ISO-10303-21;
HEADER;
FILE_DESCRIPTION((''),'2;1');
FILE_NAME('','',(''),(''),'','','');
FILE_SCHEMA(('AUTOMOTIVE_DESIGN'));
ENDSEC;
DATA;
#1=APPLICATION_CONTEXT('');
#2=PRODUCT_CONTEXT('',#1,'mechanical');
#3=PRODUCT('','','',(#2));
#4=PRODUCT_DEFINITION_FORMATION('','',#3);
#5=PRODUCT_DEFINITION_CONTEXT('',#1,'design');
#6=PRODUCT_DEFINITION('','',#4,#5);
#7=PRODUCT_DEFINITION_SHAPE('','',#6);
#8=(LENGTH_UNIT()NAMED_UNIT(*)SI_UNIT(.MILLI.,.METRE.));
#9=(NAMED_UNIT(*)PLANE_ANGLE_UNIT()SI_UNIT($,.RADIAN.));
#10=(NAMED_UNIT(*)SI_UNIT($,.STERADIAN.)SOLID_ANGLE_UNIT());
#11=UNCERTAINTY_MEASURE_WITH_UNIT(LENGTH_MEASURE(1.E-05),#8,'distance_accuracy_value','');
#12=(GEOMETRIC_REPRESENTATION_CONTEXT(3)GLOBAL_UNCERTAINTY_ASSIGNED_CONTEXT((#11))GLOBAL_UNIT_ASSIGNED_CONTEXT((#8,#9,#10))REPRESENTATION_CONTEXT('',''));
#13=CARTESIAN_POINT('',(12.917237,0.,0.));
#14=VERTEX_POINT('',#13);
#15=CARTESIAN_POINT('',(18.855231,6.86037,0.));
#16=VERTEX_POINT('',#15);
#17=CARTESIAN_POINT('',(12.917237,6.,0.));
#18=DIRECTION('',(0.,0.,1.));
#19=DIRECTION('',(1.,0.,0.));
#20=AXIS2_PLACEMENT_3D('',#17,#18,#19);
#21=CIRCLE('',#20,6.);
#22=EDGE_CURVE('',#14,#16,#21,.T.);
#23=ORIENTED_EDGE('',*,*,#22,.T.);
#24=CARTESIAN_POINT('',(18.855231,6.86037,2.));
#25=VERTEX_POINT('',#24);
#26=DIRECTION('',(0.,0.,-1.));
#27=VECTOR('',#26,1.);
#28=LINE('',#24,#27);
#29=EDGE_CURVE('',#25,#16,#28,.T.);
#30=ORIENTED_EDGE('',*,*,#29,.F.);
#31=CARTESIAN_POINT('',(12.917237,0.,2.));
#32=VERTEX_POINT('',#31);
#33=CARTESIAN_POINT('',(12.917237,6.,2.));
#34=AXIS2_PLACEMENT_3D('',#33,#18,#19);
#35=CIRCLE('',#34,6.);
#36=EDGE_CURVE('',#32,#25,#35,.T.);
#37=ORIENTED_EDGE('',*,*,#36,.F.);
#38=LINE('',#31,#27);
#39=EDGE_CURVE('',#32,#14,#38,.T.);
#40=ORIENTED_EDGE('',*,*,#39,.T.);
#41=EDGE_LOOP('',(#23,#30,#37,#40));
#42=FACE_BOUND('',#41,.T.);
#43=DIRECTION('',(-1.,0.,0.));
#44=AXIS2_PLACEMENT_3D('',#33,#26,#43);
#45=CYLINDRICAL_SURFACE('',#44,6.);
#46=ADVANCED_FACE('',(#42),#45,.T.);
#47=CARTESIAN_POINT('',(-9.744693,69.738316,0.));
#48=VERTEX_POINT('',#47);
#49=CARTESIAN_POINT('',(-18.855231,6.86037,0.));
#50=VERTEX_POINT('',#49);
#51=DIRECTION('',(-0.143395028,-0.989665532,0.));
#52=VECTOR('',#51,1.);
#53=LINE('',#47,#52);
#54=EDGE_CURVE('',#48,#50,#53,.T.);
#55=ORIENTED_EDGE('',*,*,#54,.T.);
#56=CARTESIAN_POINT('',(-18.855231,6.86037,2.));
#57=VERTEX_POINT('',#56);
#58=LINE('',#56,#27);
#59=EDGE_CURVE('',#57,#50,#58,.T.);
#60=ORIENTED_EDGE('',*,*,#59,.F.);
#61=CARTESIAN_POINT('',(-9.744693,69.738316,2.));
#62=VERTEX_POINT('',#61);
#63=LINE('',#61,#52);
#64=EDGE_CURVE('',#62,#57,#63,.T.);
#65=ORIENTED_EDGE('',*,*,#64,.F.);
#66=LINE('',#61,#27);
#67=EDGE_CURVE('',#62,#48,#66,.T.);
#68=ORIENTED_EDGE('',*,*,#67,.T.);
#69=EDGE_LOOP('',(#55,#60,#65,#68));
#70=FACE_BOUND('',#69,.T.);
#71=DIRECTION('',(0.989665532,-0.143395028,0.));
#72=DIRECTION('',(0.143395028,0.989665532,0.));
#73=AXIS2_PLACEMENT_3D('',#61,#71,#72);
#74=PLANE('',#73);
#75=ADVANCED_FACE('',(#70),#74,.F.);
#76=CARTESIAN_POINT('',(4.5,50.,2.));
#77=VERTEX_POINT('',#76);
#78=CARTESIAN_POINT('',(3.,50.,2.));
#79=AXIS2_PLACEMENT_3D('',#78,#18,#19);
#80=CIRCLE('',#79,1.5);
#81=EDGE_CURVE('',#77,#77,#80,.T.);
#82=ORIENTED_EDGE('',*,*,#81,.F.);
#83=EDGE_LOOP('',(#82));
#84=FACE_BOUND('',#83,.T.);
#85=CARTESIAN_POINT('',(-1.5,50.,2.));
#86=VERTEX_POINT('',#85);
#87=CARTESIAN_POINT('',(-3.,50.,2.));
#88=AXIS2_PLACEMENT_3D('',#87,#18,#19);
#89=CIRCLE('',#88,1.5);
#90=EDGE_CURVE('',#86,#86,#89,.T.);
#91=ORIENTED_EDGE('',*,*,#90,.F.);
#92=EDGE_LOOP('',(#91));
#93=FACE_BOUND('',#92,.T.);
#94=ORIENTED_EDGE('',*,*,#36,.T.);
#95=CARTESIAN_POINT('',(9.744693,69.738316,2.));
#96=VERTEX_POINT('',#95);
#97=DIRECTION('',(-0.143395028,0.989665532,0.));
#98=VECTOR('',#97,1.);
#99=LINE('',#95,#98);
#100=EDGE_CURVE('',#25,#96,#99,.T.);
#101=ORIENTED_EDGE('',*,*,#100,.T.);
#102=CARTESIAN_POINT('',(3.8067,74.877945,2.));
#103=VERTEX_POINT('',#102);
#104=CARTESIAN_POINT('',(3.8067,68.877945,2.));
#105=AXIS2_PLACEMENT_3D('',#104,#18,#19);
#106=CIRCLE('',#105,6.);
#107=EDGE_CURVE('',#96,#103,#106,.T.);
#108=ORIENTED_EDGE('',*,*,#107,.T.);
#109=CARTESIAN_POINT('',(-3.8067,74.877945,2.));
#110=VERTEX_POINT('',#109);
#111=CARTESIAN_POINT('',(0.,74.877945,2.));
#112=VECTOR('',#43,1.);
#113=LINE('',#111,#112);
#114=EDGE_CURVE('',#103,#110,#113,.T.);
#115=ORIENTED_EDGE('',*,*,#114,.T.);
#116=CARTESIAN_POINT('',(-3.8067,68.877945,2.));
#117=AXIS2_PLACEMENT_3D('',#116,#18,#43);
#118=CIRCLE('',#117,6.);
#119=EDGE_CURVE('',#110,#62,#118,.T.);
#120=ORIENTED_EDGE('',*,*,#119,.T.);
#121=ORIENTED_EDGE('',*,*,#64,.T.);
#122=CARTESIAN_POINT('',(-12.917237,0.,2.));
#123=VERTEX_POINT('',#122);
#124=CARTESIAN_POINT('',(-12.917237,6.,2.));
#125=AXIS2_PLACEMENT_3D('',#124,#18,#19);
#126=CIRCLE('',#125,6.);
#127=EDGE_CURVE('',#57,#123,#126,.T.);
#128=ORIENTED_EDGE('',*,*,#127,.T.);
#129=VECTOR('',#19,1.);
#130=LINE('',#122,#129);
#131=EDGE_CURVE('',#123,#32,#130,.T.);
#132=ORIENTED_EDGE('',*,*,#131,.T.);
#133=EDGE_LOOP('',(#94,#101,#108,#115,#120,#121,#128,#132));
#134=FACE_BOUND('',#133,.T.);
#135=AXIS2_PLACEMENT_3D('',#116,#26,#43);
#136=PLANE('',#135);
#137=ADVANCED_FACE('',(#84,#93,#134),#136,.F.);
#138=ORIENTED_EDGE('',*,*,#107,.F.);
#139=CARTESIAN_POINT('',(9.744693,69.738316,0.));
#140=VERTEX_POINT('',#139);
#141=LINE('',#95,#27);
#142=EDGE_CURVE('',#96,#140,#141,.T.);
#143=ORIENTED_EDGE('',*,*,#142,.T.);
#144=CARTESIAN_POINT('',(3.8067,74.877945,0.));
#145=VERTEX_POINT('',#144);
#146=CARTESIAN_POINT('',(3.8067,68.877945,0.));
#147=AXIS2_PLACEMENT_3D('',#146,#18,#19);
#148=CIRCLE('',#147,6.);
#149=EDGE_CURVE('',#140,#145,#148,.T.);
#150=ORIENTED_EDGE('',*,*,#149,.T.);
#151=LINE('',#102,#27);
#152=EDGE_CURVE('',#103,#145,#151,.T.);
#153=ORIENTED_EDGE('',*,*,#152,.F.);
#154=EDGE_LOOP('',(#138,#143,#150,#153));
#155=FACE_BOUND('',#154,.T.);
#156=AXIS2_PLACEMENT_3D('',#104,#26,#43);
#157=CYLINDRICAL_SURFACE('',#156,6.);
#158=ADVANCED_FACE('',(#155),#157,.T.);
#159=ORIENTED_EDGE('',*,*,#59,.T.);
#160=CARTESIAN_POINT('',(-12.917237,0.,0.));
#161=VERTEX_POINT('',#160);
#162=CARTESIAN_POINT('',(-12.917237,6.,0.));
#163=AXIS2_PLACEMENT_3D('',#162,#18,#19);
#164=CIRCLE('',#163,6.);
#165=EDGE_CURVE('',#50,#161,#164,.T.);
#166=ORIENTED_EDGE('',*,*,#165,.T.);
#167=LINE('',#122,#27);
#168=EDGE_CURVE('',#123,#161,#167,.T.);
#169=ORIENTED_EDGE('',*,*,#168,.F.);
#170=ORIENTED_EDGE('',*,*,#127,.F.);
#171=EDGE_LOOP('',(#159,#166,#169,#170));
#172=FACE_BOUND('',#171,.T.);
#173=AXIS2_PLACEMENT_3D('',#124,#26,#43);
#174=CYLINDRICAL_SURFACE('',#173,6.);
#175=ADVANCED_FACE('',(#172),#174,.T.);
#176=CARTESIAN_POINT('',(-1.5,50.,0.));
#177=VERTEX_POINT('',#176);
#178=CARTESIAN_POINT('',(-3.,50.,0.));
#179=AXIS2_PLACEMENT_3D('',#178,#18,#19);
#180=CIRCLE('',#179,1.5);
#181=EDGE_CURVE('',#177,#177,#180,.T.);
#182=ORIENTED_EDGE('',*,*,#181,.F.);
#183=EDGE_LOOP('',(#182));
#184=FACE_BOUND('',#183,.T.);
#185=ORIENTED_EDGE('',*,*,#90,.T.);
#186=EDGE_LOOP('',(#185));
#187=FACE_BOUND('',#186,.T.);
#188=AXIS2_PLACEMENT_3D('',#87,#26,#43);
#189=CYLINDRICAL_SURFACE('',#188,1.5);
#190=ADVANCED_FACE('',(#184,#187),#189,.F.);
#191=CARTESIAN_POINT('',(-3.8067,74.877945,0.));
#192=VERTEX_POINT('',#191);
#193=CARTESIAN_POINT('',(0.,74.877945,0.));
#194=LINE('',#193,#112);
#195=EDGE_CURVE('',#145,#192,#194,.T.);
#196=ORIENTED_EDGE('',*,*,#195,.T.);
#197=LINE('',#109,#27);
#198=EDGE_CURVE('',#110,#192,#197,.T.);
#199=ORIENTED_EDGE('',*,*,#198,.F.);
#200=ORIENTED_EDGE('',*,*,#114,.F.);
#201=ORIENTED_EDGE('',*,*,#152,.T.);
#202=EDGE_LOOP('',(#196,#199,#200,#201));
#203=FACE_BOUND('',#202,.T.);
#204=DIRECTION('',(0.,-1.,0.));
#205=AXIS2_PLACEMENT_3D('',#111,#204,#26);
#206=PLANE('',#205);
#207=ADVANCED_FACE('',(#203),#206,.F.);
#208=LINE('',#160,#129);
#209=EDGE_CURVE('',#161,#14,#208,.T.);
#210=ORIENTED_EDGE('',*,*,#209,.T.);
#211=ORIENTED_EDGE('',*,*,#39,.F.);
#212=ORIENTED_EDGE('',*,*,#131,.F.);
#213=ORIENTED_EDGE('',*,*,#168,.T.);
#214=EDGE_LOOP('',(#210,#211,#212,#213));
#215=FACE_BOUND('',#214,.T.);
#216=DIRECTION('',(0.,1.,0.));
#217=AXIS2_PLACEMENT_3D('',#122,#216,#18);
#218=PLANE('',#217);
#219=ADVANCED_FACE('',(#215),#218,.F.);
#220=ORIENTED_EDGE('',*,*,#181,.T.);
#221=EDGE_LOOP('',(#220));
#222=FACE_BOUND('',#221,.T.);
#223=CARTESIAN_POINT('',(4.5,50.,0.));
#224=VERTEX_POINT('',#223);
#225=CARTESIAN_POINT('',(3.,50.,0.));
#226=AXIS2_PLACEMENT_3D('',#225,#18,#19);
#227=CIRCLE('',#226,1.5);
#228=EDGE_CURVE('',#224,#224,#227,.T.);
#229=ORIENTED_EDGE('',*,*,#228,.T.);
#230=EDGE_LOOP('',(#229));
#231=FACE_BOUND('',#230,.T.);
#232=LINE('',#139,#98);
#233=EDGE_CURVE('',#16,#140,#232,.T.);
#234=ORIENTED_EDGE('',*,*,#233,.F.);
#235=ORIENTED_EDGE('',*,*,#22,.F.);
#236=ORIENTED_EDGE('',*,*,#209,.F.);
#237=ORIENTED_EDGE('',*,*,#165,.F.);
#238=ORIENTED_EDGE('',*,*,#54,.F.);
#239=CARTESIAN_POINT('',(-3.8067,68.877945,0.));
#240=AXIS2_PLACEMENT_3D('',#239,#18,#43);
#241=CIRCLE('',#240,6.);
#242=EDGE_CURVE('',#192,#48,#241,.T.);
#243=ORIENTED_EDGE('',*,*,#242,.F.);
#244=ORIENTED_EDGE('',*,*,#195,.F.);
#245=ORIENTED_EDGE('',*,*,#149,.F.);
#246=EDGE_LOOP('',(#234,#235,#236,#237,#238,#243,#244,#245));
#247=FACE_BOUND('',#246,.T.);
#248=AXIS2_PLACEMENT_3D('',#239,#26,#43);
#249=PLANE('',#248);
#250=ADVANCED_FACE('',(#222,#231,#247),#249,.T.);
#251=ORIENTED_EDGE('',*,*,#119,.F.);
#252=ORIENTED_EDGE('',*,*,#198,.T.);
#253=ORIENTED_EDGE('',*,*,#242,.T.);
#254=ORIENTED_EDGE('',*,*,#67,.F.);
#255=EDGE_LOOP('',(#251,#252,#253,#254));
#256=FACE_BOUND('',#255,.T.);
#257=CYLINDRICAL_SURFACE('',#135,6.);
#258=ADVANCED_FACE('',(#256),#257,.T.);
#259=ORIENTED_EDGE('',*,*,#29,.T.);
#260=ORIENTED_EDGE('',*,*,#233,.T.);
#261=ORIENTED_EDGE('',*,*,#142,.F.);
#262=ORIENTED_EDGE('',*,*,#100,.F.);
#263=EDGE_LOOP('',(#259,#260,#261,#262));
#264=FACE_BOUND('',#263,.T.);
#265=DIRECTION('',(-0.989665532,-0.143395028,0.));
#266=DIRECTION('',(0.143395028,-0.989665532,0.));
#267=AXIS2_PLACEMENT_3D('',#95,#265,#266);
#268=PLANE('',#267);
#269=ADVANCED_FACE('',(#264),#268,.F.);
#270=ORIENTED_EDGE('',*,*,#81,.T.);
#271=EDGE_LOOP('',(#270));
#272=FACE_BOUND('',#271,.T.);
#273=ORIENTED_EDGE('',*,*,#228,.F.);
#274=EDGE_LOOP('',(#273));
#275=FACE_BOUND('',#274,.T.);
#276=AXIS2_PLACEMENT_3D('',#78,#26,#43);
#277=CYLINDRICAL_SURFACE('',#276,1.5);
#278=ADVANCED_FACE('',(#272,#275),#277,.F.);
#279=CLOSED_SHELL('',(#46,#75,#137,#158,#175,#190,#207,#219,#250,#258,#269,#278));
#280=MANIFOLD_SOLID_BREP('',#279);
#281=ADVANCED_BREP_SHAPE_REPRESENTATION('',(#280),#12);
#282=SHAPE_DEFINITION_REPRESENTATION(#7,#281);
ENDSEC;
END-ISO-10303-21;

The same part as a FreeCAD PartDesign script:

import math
import FreeCAD as App
import Part
import Sketcher

doc = App.newDocument("Part")
params = doc.addObject("Spreadsheet::Sheet", "Params")
for row, (alias, value) in enumerate([
    ("sketch1_diameter", "3 mm"),
    ("sketch1_radius", "6 mm"),
    ("pad1_length", "2 mm"),
], start=1):
    params.set(f"A{row}", alias)
    params.set(f"B{row}", "=" + value)
    params.setAlias(f"B{row}", alias)

body = doc.addObject("PartDesign::Body", "Body")

sketch1 = doc.addObject("Sketcher::SketchObject", "Sketch")
body.addObject(sketch1)
sketch1.AttachmentSupport = (doc.XY_Plane, [""])
sketch1.MapMode = "FlatFace"
sketch1.addGeometry([
    Part.LineSegment(App.Vector(-12.9, 0, 0), App.Vector(12.9, 0, 0)),
    Part.ArcOfCircle(Part.Circle(App.Vector(12.9, 6, 0), App.Vector(0, 0, 1), 6), math.radians(-90), math.radians(8)),
    Part.LineSegment(App.Vector(18.9, 6.9, 0), App.Vector(9.7, 69.7, 0)),
    Part.ArcOfCircle(Part.Circle(App.Vector(3.8, 68.9, 0), App.Vector(0, 0, 1), 6), math.radians(8), math.radians(90)),
    Part.LineSegment(App.Vector(3.8, 74.9, 0), App.Vector(-3.8, 74.9, 0)),
    Part.ArcOfCircle(Part.Circle(App.Vector(-3.8, 68.9, 0), App.Vector(0, 0, 1), 6), math.radians(90), math.radians(172)),
    Part.LineSegment(App.Vector(-9.7, 69.7, 0), App.Vector(-18.9, 6.9, 0)),
    Part.ArcOfCircle(Part.Circle(App.Vector(-12.9, 6, 0), App.Vector(0, 0, 1), 6), math.radians(172), math.radians(270)),
    Part.Circle(App.Vector(-3, 50, 0), App.Vector(0, 0, 1), 1.5),
    Part.Circle(App.Vector(3, 50, 0), App.Vector(0, 0, 1), 1.5),
], False)
sketch1.addConstraint([
    Sketcher.Constraint("Tangent", 0, 2, 1, 1),
    Sketcher.Constraint("Tangent", 1, 2, 2, 1),
    Sketcher.Constraint("Tangent", 2, 2, 3, 1),
    Sketcher.Constraint("Tangent", 3, 2, 4, 1),
    Sketcher.Constraint("Tangent", 4, 2, 5, 1),
    Sketcher.Constraint("Tangent", 5, 2, 6, 1),
    Sketcher.Constraint("Tangent", 6, 2, 7, 1),
    Sketcher.Constraint("Tangent", 7, 2, 0, 1),
    Sketcher.Constraint("Horizontal", 0),
    Sketcher.Constraint("Horizontal", 4),
    Sketcher.Constraint("Equal", 1, 3),
    Sketcher.Constraint("Equal", 3, 5),
    Sketcher.Constraint("Equal", 5, 7),
    Sketcher.Constraint("Equal", 8, 9),
    Sketcher.Constraint("Symmetric", 0, 2, 7, 2, -1, 1),
    Sketcher.Constraint("Symmetric", 8, 3, 9, 3, -2),
    Sketcher.Constraint("Horizontal", 2, 2, 5, 2),
    Sketcher.Constraint("Diameter", 8, 3.0),
    Sketcher.Constraint("Radius", 1, 6.0),
    Sketcher.Constraint("DistanceX", 8, 3, -1, 1, 3.0),
    Sketcher.Constraint("DistanceY", -1, 1, 8, 3, 50.0),
    Sketcher.Constraint("DistanceX", 4, 2, 4, 1, 7.6134),
    Sketcher.Constraint("Distance", 2, 63.534541),
    Sketcher.Constraint("DistanceX", 0, 1, 0, 2, 25.834475),
])
sketch1.setExpression("Constraints[17]", "Params.sketch1_diameter")
sketch1.setExpression("Constraints[18]", "Params.sketch1_radius")
pad1 = doc.addObject("PartDesign::Pad", "Pad")
body.addObject(pad1)
pad1.Profile = sketch1
pad1.setExpression("Length", "Params.pad1_length")

doc.recompute()
